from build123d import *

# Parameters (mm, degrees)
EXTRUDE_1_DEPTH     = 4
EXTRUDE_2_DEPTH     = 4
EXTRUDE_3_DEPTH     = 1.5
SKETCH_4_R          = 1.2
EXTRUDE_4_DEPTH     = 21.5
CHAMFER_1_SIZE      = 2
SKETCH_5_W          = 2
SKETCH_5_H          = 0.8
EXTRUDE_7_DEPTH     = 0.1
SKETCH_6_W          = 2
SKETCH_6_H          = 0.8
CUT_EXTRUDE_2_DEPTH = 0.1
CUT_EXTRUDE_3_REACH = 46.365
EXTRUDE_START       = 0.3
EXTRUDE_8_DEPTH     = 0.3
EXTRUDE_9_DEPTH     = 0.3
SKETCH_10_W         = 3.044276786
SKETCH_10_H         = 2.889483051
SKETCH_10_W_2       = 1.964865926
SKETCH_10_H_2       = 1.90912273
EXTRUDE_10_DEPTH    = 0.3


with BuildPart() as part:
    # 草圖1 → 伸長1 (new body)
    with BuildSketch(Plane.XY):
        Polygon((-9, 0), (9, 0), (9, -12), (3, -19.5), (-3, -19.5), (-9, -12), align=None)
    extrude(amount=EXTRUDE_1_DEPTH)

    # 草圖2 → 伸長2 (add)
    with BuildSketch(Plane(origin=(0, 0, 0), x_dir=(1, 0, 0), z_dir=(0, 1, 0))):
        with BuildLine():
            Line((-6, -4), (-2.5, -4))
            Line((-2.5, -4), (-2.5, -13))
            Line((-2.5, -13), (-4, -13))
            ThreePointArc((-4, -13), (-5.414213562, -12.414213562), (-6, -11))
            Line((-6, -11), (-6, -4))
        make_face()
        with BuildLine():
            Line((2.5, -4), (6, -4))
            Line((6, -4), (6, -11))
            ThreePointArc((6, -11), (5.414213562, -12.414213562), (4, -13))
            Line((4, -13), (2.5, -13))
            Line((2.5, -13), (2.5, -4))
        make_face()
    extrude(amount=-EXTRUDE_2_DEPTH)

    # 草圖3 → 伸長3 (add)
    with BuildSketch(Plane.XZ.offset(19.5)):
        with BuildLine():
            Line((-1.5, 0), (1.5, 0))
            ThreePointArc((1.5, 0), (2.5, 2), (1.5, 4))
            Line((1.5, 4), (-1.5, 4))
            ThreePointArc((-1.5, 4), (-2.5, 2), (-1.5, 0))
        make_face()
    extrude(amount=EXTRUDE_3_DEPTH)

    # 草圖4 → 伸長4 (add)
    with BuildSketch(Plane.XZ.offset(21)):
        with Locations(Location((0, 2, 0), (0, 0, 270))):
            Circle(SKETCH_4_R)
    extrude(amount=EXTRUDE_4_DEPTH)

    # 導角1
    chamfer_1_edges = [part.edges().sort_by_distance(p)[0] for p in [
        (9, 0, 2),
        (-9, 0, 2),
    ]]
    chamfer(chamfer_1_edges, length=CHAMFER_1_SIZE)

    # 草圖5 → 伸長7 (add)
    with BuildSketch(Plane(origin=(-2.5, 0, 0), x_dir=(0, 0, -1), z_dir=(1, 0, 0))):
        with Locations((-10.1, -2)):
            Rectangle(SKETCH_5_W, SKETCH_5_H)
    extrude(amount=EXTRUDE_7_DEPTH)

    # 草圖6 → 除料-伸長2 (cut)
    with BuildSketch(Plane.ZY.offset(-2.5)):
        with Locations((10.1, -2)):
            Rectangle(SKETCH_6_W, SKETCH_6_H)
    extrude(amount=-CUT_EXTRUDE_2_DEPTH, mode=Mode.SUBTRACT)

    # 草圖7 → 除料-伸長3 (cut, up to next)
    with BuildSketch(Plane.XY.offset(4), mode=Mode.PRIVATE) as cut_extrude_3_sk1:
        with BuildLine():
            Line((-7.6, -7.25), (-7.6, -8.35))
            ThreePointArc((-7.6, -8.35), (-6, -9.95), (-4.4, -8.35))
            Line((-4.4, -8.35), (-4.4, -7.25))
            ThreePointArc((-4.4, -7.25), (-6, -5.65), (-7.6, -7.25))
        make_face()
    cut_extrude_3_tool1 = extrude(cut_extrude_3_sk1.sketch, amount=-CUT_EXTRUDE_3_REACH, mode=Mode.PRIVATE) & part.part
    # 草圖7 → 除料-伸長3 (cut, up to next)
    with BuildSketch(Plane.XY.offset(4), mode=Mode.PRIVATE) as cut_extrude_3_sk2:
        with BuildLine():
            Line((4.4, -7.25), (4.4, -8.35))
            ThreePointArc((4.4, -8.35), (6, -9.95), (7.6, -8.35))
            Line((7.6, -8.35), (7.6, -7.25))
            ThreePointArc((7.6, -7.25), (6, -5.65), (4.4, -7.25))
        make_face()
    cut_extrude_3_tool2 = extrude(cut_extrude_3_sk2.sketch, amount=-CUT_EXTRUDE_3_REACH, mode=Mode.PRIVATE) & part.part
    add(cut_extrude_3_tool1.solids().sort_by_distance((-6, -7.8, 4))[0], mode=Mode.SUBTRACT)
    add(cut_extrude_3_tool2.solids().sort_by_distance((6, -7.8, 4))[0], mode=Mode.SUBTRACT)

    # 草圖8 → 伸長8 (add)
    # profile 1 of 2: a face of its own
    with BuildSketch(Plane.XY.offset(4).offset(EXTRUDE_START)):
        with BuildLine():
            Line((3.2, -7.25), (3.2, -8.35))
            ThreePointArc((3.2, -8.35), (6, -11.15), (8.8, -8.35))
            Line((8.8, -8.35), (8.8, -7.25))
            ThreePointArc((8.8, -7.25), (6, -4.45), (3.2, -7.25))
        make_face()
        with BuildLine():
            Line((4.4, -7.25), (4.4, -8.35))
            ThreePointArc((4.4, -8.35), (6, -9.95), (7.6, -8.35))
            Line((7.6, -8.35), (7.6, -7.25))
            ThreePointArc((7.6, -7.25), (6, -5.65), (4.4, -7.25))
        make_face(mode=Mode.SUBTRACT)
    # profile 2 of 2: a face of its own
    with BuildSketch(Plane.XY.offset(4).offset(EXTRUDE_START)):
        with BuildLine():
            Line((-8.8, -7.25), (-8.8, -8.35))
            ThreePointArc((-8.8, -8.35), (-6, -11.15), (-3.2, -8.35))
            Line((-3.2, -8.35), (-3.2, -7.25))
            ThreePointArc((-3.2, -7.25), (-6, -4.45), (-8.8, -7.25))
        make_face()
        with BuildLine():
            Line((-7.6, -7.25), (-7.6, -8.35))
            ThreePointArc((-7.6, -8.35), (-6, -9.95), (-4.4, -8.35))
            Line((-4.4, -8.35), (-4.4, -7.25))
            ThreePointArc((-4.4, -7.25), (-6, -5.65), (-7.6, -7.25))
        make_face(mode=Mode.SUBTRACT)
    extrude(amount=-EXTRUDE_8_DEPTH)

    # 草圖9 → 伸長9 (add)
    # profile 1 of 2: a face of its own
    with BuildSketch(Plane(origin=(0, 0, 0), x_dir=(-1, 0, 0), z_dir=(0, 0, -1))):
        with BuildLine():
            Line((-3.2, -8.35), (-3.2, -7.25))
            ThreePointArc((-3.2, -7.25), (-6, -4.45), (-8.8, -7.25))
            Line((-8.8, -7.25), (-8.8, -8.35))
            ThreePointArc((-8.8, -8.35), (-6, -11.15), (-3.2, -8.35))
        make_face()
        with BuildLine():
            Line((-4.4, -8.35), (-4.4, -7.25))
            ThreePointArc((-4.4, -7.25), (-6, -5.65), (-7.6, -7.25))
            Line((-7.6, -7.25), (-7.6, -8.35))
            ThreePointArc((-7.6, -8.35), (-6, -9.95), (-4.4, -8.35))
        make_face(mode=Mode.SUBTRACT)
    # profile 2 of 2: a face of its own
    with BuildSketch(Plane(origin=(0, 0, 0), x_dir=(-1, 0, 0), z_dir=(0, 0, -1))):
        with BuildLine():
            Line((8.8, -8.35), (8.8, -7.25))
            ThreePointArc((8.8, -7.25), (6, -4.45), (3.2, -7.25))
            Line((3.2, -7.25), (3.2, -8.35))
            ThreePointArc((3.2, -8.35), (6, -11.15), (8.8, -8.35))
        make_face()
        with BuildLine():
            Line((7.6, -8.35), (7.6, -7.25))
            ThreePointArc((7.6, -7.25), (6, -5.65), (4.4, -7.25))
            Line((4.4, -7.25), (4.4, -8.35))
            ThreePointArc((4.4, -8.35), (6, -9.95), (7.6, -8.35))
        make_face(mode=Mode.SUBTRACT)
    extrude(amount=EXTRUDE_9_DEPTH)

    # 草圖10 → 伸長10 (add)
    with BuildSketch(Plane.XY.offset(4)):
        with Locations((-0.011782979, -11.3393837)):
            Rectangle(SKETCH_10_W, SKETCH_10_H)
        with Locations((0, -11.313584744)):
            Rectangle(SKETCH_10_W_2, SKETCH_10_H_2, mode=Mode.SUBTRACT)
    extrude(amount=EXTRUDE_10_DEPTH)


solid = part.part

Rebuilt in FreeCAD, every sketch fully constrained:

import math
import FreeCAD as App
import Part
import Sketcher
from FreeCAD import Vector
Q = App.Units.Quantity


def edges_at(feature, points):
    """Names of the edges that pass closest to the given points."""
    edges = feature.Shape.Edges
    near = lambda p: min(range(len(edges)), key=lambda i: edges[i].distToShape(Part.Vertex(*p))[0])
    return sorted({f"Edge{near(p) + 1}" for p in points})

doc = App.newDocument("Part")
body = doc.addObject("PartDesign::Body", "Body")

# Sketch on XY plane
sketch1 = doc.addObject("Sketcher::SketchObject", "Sketch")
body.addObject(sketch1)
sketch1.AttachmentSupport = (doc.XY_Plane, [""])
sketch1.MapMode = "FlatFace"
sketch1.addGeometry([
    Part.LineSegment(Vector(9, 0, 0), Vector(-9, 0, 0)),  # 0
    Part.LineSegment(Vector(-9, 0, 0), Vector(-9, -12, 0)),  # 1
    Part.LineSegment(Vector(-9, -12, 0), Vector(-3, -20, 0)),  # 2
    Part.LineSegment(Vector(-3, -20, 0), Vector(3, -20, 0)),  # 3
    Part.LineSegment(Vector(3, -20, 0), Vector(9, -12, 0)),  # 4
    Part.LineSegment(Vector(9, -12, 0), Vector(9, 0, 0)),  # 5
], False)
sketch1.addConstraint([
    Sketcher.Constraint("Coincident", 0, 2, 1, 1),
    Sketcher.Constraint("Coincident", 1, 2, 2, 1),
    Sketcher.Constraint("Coincident", 2, 2, 3, 1),
    Sketcher.Constraint("Coincident", 3, 2, 4, 1),
    Sketcher.Constraint("Coincident", 4, 2, 5, 1),
    Sketcher.Constraint("Coincident", 5, 2, 0, 1),
    Sketcher.Constraint("Horizontal", 0),
    Sketcher.Constraint("Vertical", 1),
    Sketcher.Constraint("Horizontal", 3),
    Sketcher.Constraint("Vertical", 5),
    Sketcher.Constraint("Symmetric", 0, 2, 5, 2, -1, 1),
    Sketcher.Constraint("Horizontal", 1, 2, 4, 2),
    Sketcher.Constraint("Equal", 2, 4),
    Sketcher.Constraint("DistanceX", 0, 2, 0, 1, Q("18 mm")),
    Sketcher.Constraint("DistanceX", 3, 1, 3, 2, Q("6 mm")),
    Sketcher.Constraint("DistanceY", 1, 2, 1, 1, Q("12 mm")),
    Sketcher.Constraint("DistanceY", 2, 2, -1, 1, Q("19.5 mm")),
])
pad1 = doc.addObject("PartDesign::Pad", "Pad")
body.addObject(pad1)
pad1.Profile = sketch1
pad1.Length = 4

# Sketch on XZ plane
sketch2 = doc.addObject("Sketcher::SketchObject", "Sketch001")
body.addObject(sketch2)
sketch2.AttachmentSupport = (doc.XZ_Plane, [""])
sketch2.MapMode = "FlatFace"
sketch2.addGeometry([
    Part.LineSegment(Vector(-2.5, 4, 0), Vector(-6, 4, 0)),  # 0
    Part.LineSegment(Vector(-6, 4, 0), Vector(-6, 11, 0)),  # 1
    Part.ArcOfCircle(Part.Circle(Vector(-4, 11, 0), Vector(0, 0, 1), 2), math.radians(90), math.radians(180)),  # 2
    Part.LineSegment(Vector(-4, 13, 0), Vector(-2.5, 13, 0)),  # 3
    Part.LineSegment(Vector(-2.5, 13, 0), Vector(-2.5, 4, 0)),  # 4
    Part.LineSegment(Vector(6, 4, 0), Vector(2.5, 4, 0)),  # 5
    Part.LineSegment(Vector(2.5, 4, 0), Vector(2.5, 13, 0)),  # 6
    Part.LineSegment(Vector(2.5, 13, 0), Vector(4, 13, 0)),  # 7
    Part.ArcOfCircle(Part.Circle(Vector(4, 11, 0), Vector(0, 0, 1), 2), math.radians(0), math.radians(90)),  # 8
    Part.LineSegment(Vector(6, 11, 0), Vector(6, 4, 0)),  # 9
], False)
sketch2.addConstraint([
    Sketcher.Constraint("Coincident", 0, 2, 1, 1),
    Sketcher.Constraint("Tangent", 1, 2, 2, 2),
    Sketcher.Constraint("Tangent", 2, 1, 3, 1),
    Sketcher.Constraint("Coincident", 3, 2, 4, 1),
    Sketcher.Constraint("Coincident", 4, 2, 0, 1),
    Sketcher.Constraint("Coincident", 5, 2, 6, 1),
    Sketcher.Constraint("Coincident", 6, 2, 7, 1),
    Sketcher.Constraint("Tangent", 7, 2, 8, 2),
    Sketcher.Constraint("Tangent", 8, 1, 9, 1),
    Sketcher.Constraint("Coincident", 9, 2, 5, 1),
    Sketcher.Constraint("Horizontal", 0),
    Sketcher.Constraint("Vertical", 1),
    Sketcher.Constraint("Horizontal", 3),
    Sketcher.Constraint("Vertical", 4),
    Sketcher.Constraint("Horizontal", 5),
    Sketcher.Constraint("Vertical", 6),
    Sketcher.Constraint("Horizontal", 7),
    Sketcher.Constraint("Vertical", 9),
    Sketcher.Constraint("Equal", 2, 8),
    Sketcher.Constraint("Symmetric", 2, 3, 8, 3, -2),
    Sketcher.Constraint("Symmetric", 4, 2, 5, 2, -2),
    Sketcher.Constraint("Radius", 2, Q("2 mm")),
    Sketcher.Constraint("DistanceY", 1, 1, 1, 2, Q("7 mm")),
    Sketcher.Constraint("DistanceX", 0, 2, 0, 1, Q("3.5 mm")),
    Sketcher.Constraint("DistanceX", 2, 3, -1, 1, Q("4 mm")),
    Sketcher.Constraint("DistanceY", -1, 1, 2, 3, Q("11 mm")),
])
pad2 = doc.addObject("PartDesign::Pad", "Pad001")
body.addObject(pad2)
pad2.Profile = sketch2
pad2.Length = 4

# Sketch on XZ plane
sketch3 = doc.addObject("Sketcher::SketchObject", "Sketch002")
body.addObject(sketch3)
sketch3.AttachmentSupport = (doc.XZ_Plane, [""])
sketch3.MapMode = "FlatFace"
sketch3.AttachmentOffset = App.Placement(Vector(0, 0, 19.5), App.Rotation())
sketch3.addGeometry([
    Part.LineSegment(Vector(-1.5, 0, 0), Vector(1.5, 0, 0)),
    Part.ArcOfCircle(Part.Circle(Vector(0, 2, 0), Vector(0, 0, 1), 2.5), math.radians(-53), math.radians(53)),
    Part.LineSegment(Vector(1.5, 4, 0), Vector(-1.5, 4, 0)),
    Part.ArcOfCircle(Part.Circle(Vector(0, 2, 0), Vector(0, 0, 1), 2.5), math.radians(127), math.radians(233)),
], False)
sketch3.addConstraint([
    Sketcher.Constraint("Coincident", 0, 2, 1, 1),
    Sketcher.Constraint("Coincident", 1, 2, 2, 1),
    Sketcher.Constraint("Coincident", 2, 2, 3, 1),
    Sketcher.Constraint("Coincident", 3, 2, 0, 1),
    Sketcher.Constraint("Horizontal", 0),
    Sketcher.Constraint("Horizontal", 2),
    Sketcher.Constraint("Coincident", 3, 3, 1, 3),
    Sketcher.Constraint("Equal", 1, 3),
    Sketcher.Constraint("Symmetric", 0, 2, 3, 2, -1, 1),
    Sketcher.Constraint("Vertical", 0, 2, 1, 2),
    Sketcher.Constraint("Radius", 1, Q("2.5 mm")),
    Sketcher.Constraint("DistanceX", 0, 1, 0, 2, Q("3 mm")),
])
pad3 = doc.addObject("PartDesign::Pad", "Pad002")
body.addObject(pad3)
pad3.Profile = sketch3
pad3.Length = 1.5

# Sketch on XZ plane
sketch4 = doc.addObject("Sketcher::SketchObject", "Sketch003")
body.addObject(sketch4)
sketch4.AttachmentSupport = (doc.XZ_Plane, [""])
sketch4.MapMode = "FlatFace"
sketch4.AttachmentOffset = App.Placement(Vector(0, 0, 21), App.Rotation())
sketch4.addGeometry(Part.Circle(Vector(0, 2, 0), Vector(0, 0, 1), 1.2), False)
sketch4.addConstraint([
    Sketcher.Constraint("PointOnObject", 0, 3, -2),
    Sketcher.Constraint("Diameter", 0, Q("2.4 mm")),
    Sketcher.Constraint("DistanceY", -1, 1, 0, 3, Q("2 mm")),
])
pad4 = doc.addObject("PartDesign::Pad", "Pad003")
body.addObject(pad4)
pad4.Profile = sketch4
pad4.Length = 21.5
doc.recompute()

chamfer = doc.addObject("PartDesign::Chamfer", "Chamfer")
body.addObject(chamfer)
chamfer.Base = (pad4, edges_at(pad4, [(9, 0, 2), (-9, 0, 2)]))
chamfer.Size = 2

# Sketch on YZ plane
sketch5 = doc.addObject("Sketcher::SketchObject", "Sketch004")
body.addObject(sketch5)
sketch5.AttachmentSupport = (doc.YZ_Plane, [""])
sketch5.MapMode = "FlatFace"
sketch5.AttachmentOffset = App.Placement(Vector(0, 0, -2.5), App.Rotation())
sketch5.addGeometry([
    Part.LineSegment(Vector(-1.6, 11.1, 0), Vector(-2.4, 11.1, 0)),
    Part.LineSegment(Vector(-2.4, 11.1, 0), Vector(-2.4, 9.1, 0)),
    Part.LineSegment(Vector(-2.4, 9.1, 0), Vector(-1.6, 9.1, 0)),
    Part.LineSegment(Vector(-1.6, 9.1, 0), Vector(-1.6, 11.1, 0)),
], False)
sketch5.addConstraint([
    Sketcher.Constraint("Coincident", 0, 2, 1, 1),
    Sketcher.Constraint("Coincident", 1, 2, 2, 1),
    Sketcher.Constraint("Coincident", 2, 2, 3, 1),
    Sketcher.Constraint("Coincident", 3, 2, 0, 1),
    Sketcher.Constraint("Horizontal", 0),
    Sketcher.Constraint("Vertical", 1),
    Sketcher.Constraint("Horizontal", 2),
    Sketcher.Constraint("Vertical", 3),
    Sketcher.Constraint("DistanceY", 1, 2, 1, 1, Q("2 mm")),
    Sketcher.Constraint("DistanceX", 0, 2, 0, 1, Q("0.8 mm")),
    Sketcher.Constraint("DistanceX", 0, 2, -1, 1, Q("2.4 mm")),
    Sketcher.Constraint("DistanceY", -1, 1, 0, 2, Q("11.1 mm")),
])
pad5 = doc.addObject("PartDesign::Pad", "Pad004")
body.addObject(pad5)
pad5.Profile = sketch5
pad5.Length = 0.1

# Sketch on YZ plane
sketch6 = doc.addObject("Sketcher::SketchObject", "Sketch005")
body.addObject(sketch6)
sketch6.AttachmentSupport = (doc.YZ_Plane, [""])
sketch6.MapMode = "FlatFace"
sketch6.AttachmentOffset = App.Placement(Vector(0, 0, 2.5), App.Rotation())
sketch6.addGeometry([
    Part.LineSegment(Vector(-1.6, 9.1, 0), Vector(-2.4, 9.1, 0)),
    Part.LineSegment(Vector(-2.4, 9.1, 0), Vector(-2.4, 11.1, 0)),
    Part.LineSegment(Vector(-2.4, 11.1, 0), Vector(-1.6, 11.1, 0)),
    Part.LineSegment(Vector(-1.6, 11.1, 0), Vector(-1.6, 9.1, 0)),
], False)
sketch6.addConstraint([
    Sketcher.Constraint("Coincident", 0, 2, 1, 1),
    Sketcher.Constraint("Coincident", 1, 2, 2, 1),
    Sketcher.Constraint("Coincident", 2, 2, 3, 1),
    Sketcher.Constraint("Coincident", 3, 2, 0, 1),
    Sketcher.Constraint("Horizontal", 0),
    Sketcher.Constraint("Vertical", 1),
    Sketcher.Constraint("Horizontal", 2),
    Sketcher.Constraint("Vertical", 3),
    Sketcher.Constraint("DistanceY", 1, 1, 1, 2, Q("2 mm")),
    Sketcher.Constraint("DistanceX", 0, 2, 0, 1, Q("0.8 mm")),
    Sketcher.Constraint("DistanceX", 0, 2, -1, 1, Q("2.4 mm")),
    Sketcher.Constraint("DistanceY", -1, 1, 0, 2, Q("9.1 mm")),
])
pocket1 = doc.addObject("PartDesign::Pocket", "Pocket")
body.addObject(pocket1)
pocket1.Profile = sketch6
pocket1.Length = 0.1
pocket1.Reversed = True

# Sketch on XY plane
sketch7 = doc.addObject("Sketcher::SketchObject", "Sketch006")
body.addObject(sketch7)
sketch7.AttachmentSupport = (doc.XY_Plane, [""])
sketch7.MapMode = "FlatFace"
sketch7.AttachmentOffset = App.Placement(Vector(0, 0, 4), App.Rotation())
sketch7.addGeometry([
    Part.LineSegment(Vector(-7.6, -7.2, 0), Vector(-7.6, -8.3, 0)),
    Part.ArcOfCircle(Part.Circle(Vector(-6, -8.3, 0), Vector(0, 0, 1), 1.6), math.radians(180), math.radians(360)),
    Part.LineSegment(Vector(-4.4, -8.3, 0), Vector(-4.4, -7.2, 0)),
    Part.ArcOfCircle(Part.Circle(Vector(-6, -7.2, 0), Vector(0, 0, 1), 1.6), math.radians(0), math.radians(180)),
], False)
sketch7.addConstraint([
    Sketcher.Constraint("Tangent", 0, 2, 1, 1),
    Sketcher.Constraint("Tangent", 1, 2, 2, 1),
    Sketcher.Constraint("Tangent", 2, 2, 3, 1),
    Sketcher.Constraint("Tangent", 3, 2, 0, 1),
    Sketcher.Constraint("Vertical", 0),
    Sketcher.Constraint("Vertical", 2),
    Sketcher.Constraint("Radius", 1, Q("1.6 mm")),
    Sketcher.Constraint("DistanceY", 0, 2, 0, 1, Q("1.1 mm")),
    Sketcher.Constraint("DistanceX", 1, 3, -1, 1, Q("6 mm")),
    Sketcher.Constraint("DistanceY", 1, 3, -1, 1, Q("8.35 mm")),
])
pocket2 = doc.addObject("PartDesign::Pocket", "Pocket001")
body.addObject(pocket2)
pocket2.Profile = sketch7
pocket2.Type = "UpToFirst"

# Sketch on XY plane
sketch8 = doc.addObject("Sketcher::SketchObject", "Sketch007")
body.addObject(sketch8)
sketch8.AttachmentSupport = (doc.XY_Plane, [""])
sketch8.MapMode = "FlatFace"
sketch8.AttachmentOffset = App.Placement(Vector(0, 0, 4), App.Rotation())
sketch8.addGeometry([
    Part.LineSegment(Vector(4.4, -7.2, 0), Vector(4.4, -8.3, 0)),
    Part.ArcOfCircle(Part.Circle(Vector(6, -8.3, 0), Vector(0, 0, 1), 1.6), math.radians(180), math.radians(360)),
    Part.LineSegment(Vector(7.6, -8.3, 0), Vector(7.6, -7.2, 0)),
    Part.ArcOfCircle(Part.Circle(Vector(6, -7.2, 0), Vector(0, 0, 1), 1.6), math.radians(0), math.radians(180)),
], False)
sketch8.addConstraint([
    Sketcher.Constraint("Tangent", 0, 2, 1, 1),
    Sketcher.Constraint("Tangent", 1, 2, 2, 1),
    Sketcher.Constraint("Tangent", 2, 2, 3, 1),
    Sketcher.Constraint("Tangent", 3, 2, 0, 1),
    Sketcher.Constraint("Vertical", 0),
    Sketcher.Constraint("Vertical", 2),
    Sketcher.Constraint("Radius", 1, Q("1.6 mm")),
    Sketcher.Constraint("DistanceY", 0, 2, 0, 1, Q("1.1 mm")),
    Sketcher.Constraint("DistanceX", -1, 1, 1, 3, Q("6 mm")),
    Sketcher.Constraint("DistanceY", 1, 3, -1, 1, Q("8.35 mm")),
])
pocket3 = doc.addObject("PartDesign::Pocket", "Pocket002")
body.addObject(pocket3)
pocket3.Profile = sketch8
pocket3.Type = "UpToFirst"

# Sketch on XY plane
sketch9 = doc.addObject("Sketcher::SketchObject", "Sketch008")
body.addObject(sketch9)
sketch9.AttachmentSupport = (doc.XY_Plane, [""])
sketch9.MapMode = "FlatFace"
sketch9.AttachmentOffset = App.Placement(Vector(0, 0, 4.3), App.Rotation())
sketch9.addGeometry([
    Part.LineSegment(Vector(3.2, -7.2, 0), Vector(3.2, -8.3, 0)),  # 0
    Part.ArcOfCircle(Part.Circle(Vector(6, -8.3, 0), Vector(0, 0, 1), 2.8), math.radians(180), math.radians(360)),  # 1
    Part.LineSegment(Vector(8.8, -8.3, 0), Vector(8.8, -7.2, 0)),  # 2
    Part.ArcOfCircle(Part.Circle(Vector(6, -7.2, 0), Vector(0, 0, 1), 2.8), math.radians(0), math.radians(180)),  # 3
    Part.LineSegment(Vector(4.4, -8.3, 0), Vector(4.4, -7.2, 0)),  # 4
    Part.ArcOfCircle(Part.Circle(Vector(6, -7.2, 0), Vector(0, 0, 1), 1.6), math.radians(0), math.radians(180)),  # 5
    Part.LineSegment(Vector(7.6, -7.2, 0), Vector(7.6, -8.3, 0)),  # 6
    Part.ArcOfCircle(Part.Circle(Vector(6, -8.3, 0), Vector(0, 0, 1), 1.6), math.radians(180), math.radians(360)),  # 7
    Part.LineSegment(Vector(-8.8, -7.2, 0), Vector(-8.8, -8.3, 0)),  # 8
    Part.ArcOfCircle(Part.Circle(Vector(-6, -8.3, 0), Vector(0, 0, 1), 2.8), math.radians(180), math.radians(360)),  # 9
    Part.LineSegment(Vector(-3.2, -8.3, 0), Vector(-3.2, -7.2, 0)),  # 10
    Part.ArcOfCircle(Part.Circle(Vector(-6, -7.2, 0), Vector(0, 0, 1), 2.8), math.radians(0), math.radians(180)),  # 11
    Part.LineSegment(Vector(-7.6, -8.3, 0), Vector(-7.6, -7.2, 0)),  # 12
    Part.ArcOfCircle(Part.Circle(Vector(-6, -7.2, 0), Vector(0, 0, 1), 1.6), math.radians(0), math.radians(180)),  # 13
    Part.LineSegment(Vector(-4.4, -7.2, 0), Vector(-4.4, -8.3, 0)),  # 14
    Part.ArcOfCircle(Part.Circle(Vector(-6, -8.3, 0), Vector(0, 0, 1), 1.6), math.radians(180), math.radians(360)),  # 15
], False)
sketch9.addConstraint([
    Sketcher.Constraint("Tangent", 0, 2, 1, 1),
    Sketcher.Constraint("Tangent", 1, 2, 2, 1),
    Sketcher.Constraint("Tangent", 2, 2, 3, 1),
    Sketcher.Constraint("Tangent", 3, 2, 0, 1),
    Sketcher.Constraint("Tangent", 4, 2, 5, 2),
    Sketcher.Constraint("Tangent", 5, 1, 6, 1),
    Sketcher.Constraint("Tangent", 6, 2, 7, 2),
    Sketcher.Constraint("Tangent", 7, 1, 4, 1),
    Sketcher.Constraint("Tangent", 8, 2, 9, 1),
    Sketcher.Constraint("Tangent", 9, 2, 10, 1),
    Sketcher.Constraint("Tangent", 10, 2, 11, 1),
    Sketcher.Constraint("Tangent", 11, 2, 8, 1),
    Sketcher.Constraint("Tangent", 12, 2, 13, 2),
    Sketcher.Constraint("Tangent", 13, 1, 14, 1),
    Sketcher.Constraint("Tangent", 14, 2, 15, 2),
    Sketcher.Constraint("Tangent", 15, 1, 12, 1),
    Sketcher.Constraint("Vertical", 0),
    Sketcher.Constraint("Vertical", 2),
    Sketcher.Constraint("Vertical", 4),
    Sketcher.Constraint("Vertical", 6),
    Sketcher.Constraint("Vertical", 8),
    Sketcher.Constraint("Vertical", 10),
    Sketcher.Constraint("Vertical", 12),
    Sketcher.Constraint("Vertical", 14),
    Sketcher.Constraint("Coincident", 5, 3, 3, 3),
    Sketcher.Constraint("Coincident", 13, 3, 11, 3),
    Sketcher.Constraint("Equal", 3, 9),
    Sketcher.Constraint("Equal", 7, 13),
    Sketcher.Constraint("Symmetric", 1, 3, 9, 3, -2),
    Sketcher.Constraint("Horizontal", 7, 3, 9, 3),
    Sketcher.Constraint("Horizontal", 5, 3, 11, 3),
    Sketcher.Constraint("Horizontal", 7, 3, 15, 3),
    Sketcher.Constraint("Radius", 1, Q("2.8 mm")),
    Sketcher.Constraint("Radius", 5, Q("1.6 mm")),
    Sketcher.Constraint("DistanceY", 0, 2, 0, 1, Q("1.1 mm")),
    Sketcher.Constraint("DistanceX", -1, 1, 1, 3, Q("6 mm")),
    Sketcher.Constraint("DistanceY", 1, 3, -1, 1, Q("8.35 mm")),
])
pad6 = doc.addObject("PartDesign::Pad", "Pad005")
body.addObject(pad6)
pad6.Profile = sketch9
pad6.Length = 0.3
pad6.Reversed = True

# Sketch on XY plane
sketch10 = doc.addObject("Sketcher::SketchObject", "Sketch009")
body.addObject(sketch10)
sketch10.AttachmentSupport = (doc.XY_Plane, [""])
sketch10.MapMode = "FlatFace"
sketch10.addGeometry([
    Part.LineSegment(Vector(3.2, -8.3, 0), Vector(3.2, -7.2, 0)),  # 0
    Part.ArcOfCircle(Part.Circle(Vector(6, -7.2, 0), Vector(0, 0, 1), 2.8), math.radians(0), math.radians(180)),  # 1
    Part.LineSegment(Vector(8.8, -7.2, 0), Vector(8.8, -8.3, 0)),  # 2
    Part.ArcOfCircle(Part.Circle(Vector(6, -8.3, 0), Vector(0, 0, 1), 2.8), math.radians(180), math.radians(360)),  # 3
    Part.LineSegment(Vector(4.4, -7.2, 0), Vector(4.4, -8.3, 0)),  # 4
    Part.ArcOfCircle(Part.Circle(Vector(6, -8.3, 0), Vector(0, 0, 1), 1.6), math.radians(180), math.radians(360)),  # 5
    Part.LineSegment(Vector(7.6, -8.3, 0), Vector(7.6, -7.2, 0)),  # 6
    Part.ArcOfCircle(Part.Circle(Vector(6, -7.2, 0), Vector(0, 0, 1), 1.6), math.radians(0), math.radians(180)),  # 7
    Part.LineSegment(Vector(-8.8, -8.3, 0), Vector(-8.8, -7.2, 0)),  # 8
    Part.ArcOfCircle(Part.Circle(Vector(-6, -7.2, 0), Vector(0, 0, 1), 2.8), math.radians(0), math.radians(180)),  # 9
    Part.LineSegment(Vector(-3.2, -7.2, 0), Vector(-3.2, -8.3, 0)),  # 10
    Part.ArcOfCircle(Part.Circle(Vector(-6, -8.3, 0), Vector(0, 0, 1), 2.8), math.radians(180), math.radians(360)),  # 11
    Part.LineSegment(Vector(-7.6, -7.2, 0), Vector(-7.6, -8.3, 0)),  # 12
    Part.ArcOfCircle(Part.Circle(Vector(-6, -8.3, 0), Vector(0, 0, 1), 1.6), math.radians(180), math.radians(360)),  # 13
    Part.LineSegment(Vector(-4.4, -8.3, 0), Vector(-4.4, -7.2, 0)),  # 14
    Part.ArcOfCircle(Part.Circle(Vector(-6, -7.2, 0), Vector(0, 0, 1), 1.6), math.radians(0), math.radians(180)),  # 15
], False)
sketch10.addConstraint([
    Sketcher.Constraint("Tangent", 0, 2, 1, 2),
    Sketcher.Constraint("Tangent", 1, 1, 2, 1),
    Sketcher.Constraint("Tangent", 2, 2, 3, 2),
    Sketcher.Constraint("Tangent", 3, 1, 0, 1),
    Sketcher.Constraint("Tangent", 4, 2, 5, 1),
    Sketcher.Constraint("Tangent", 5, 2, 6, 1),
    Sketcher.Constraint("Tangent", 6, 2, 7, 1),
    Sketcher.Constraint("Tangent", 7, 2, 4, 1),
    Sketcher.Constraint("Tangent", 8, 2, 9, 2),
    Sketcher.Constraint("Tangent", 9, 1, 10, 1),
    Sketcher.Constraint("Tangent", 10, 2, 11, 2),
    Sketcher.Constraint("Tangent", 11, 1, 8, 1),
    Sketcher.Constraint("Tangent", 12, 2, 13, 1),
    Sketcher.Constraint("Tangent", 13, 2, 14, 1),
    Sketcher.Constraint("Tangent", 14, 2, 15, 1),
    Sketcher.Constraint("Tangent", 15, 2, 12, 1),
    Sketcher.Constraint("Vertical", 0),
    Sketcher.Constraint("Vertical", 2),
    Sketcher.Constraint("Vertical", 4),
    Sketcher.Constraint("Vertical", 6),
    Sketcher.Constraint("Vertical", 8),
    Sketcher.Constraint("Vertical", 10),
    Sketcher.Constraint("Vertical", 12),
    Sketcher.Constraint("Vertical", 14),
    Sketcher.Constraint("Coincident", 5, 3, 3, 3),
    Sketcher.Constraint("Coincident", 13, 3, 11, 3),
    Sketcher.Constraint("Equal", 3, 9),
    Sketcher.Constraint("Equal", 7, 13),
    Sketcher.Constraint("Symmetric", 1, 3, 9, 3, -2),
    Sketcher.Constraint("Horizontal", 7, 3, 9, 3),
    Sketcher.Constraint("Horizontal", 5, 3, 11, 3),
    Sketcher.Constraint("Horizontal", 7, 3, 15, 3),
    Sketcher.Constraint("Radius", 1, Q("2.8 mm")),
    Sketcher.Constraint("Radius", 5, Q("1.6 mm")),
    Sketcher.Constraint("DistanceY", 0, 1, 0, 2, Q("1.1 mm")),
    Sketcher.Constraint("DistanceX", -1, 1, 1, 3, Q("6 mm")),
    Sketcher.Constraint("DistanceY", 1, 3, -1, 1, Q("7.25 mm")),
])
pad7 = doc.addObject("PartDesign::Pad", "Pad006")
body.addObject(pad7)
pad7.Profile = sketch10
pad7.Length = 0.3
pad7.Reversed = True

# Sketch on XY plane
sketch11 = doc.addObject("Sketcher::SketchObject", "Sketch010")
body.addObject(sketch11)
sketch11.AttachmentSupport = (doc.XY_Plane, [""])
sketch11.MapMode = "FlatFace"
sketch11.AttachmentOffset = App.Placement(Vector(0, 0, 4), App.Rotation())
sketch11.addGeometry([
    Part.LineSegment(Vector(-1.5, -9.9, 0), Vector(-1.5, -12.8, 0)),  # 0
    Part.LineSegment(Vector(-1.5, -12.8, 0), Vector(1.5, -12.8, 0)),  # 1
    Part.LineSegment(Vector(1.5, -12.8, 0), Vector(1.5, -9.9, 0)),  # 2
    Part.LineSegment(Vector(1.5, -9.9, 0), Vector(-1.5, -9.9, 0)),  # 3
    Part.LineSegment(Vector(1, -12.3, 0), Vector(-1, -12.3, 0)),  # 4
    Part.LineSegment(Vector(-1, -12.3, 0), Vector(-1, -10.4, 0)),  # 5
    Part.LineSegment(Vector(-1, -10.4, 0), Vector(1, -10.4, 0)),  # 6
    Part.LineSegment(Vector(1, -10.4, 0), Vector(1, -12.3, 0)),  # 7
], False)
sketch11.addConstraint([
    Sketcher.Constraint("Coincident", 0, 2, 1, 1),
    Sketcher.Constraint("Coincident", 1, 2, 2, 1),
    Sketcher.Constraint("Coincident", 2, 2, 3, 1),
    Sketcher.Constraint("Coincident", 3, 2, 0, 1),
    Sketcher.Constraint("Coincident", 4, 2, 5, 1),
    Sketcher.Constraint("Coincident", 5, 2, 6, 1),
    Sketcher.Constraint("Coincident", 6, 2, 7, 1),
    Sketcher.Constraint("Coincident", 7, 2, 4, 1),
    Sketcher.Constraint("Vertical", 0),
    Sketcher.Constraint("Horizontal", 1),
    Sketcher.Constraint("Vertical", 2),
    Sketcher.Constraint("Horizontal", 3),
    Sketcher.Constraint("Horizontal", 4),
    Sketcher.Constraint("Vertical", 5),
    Sketcher.Constraint("Horizontal", 6),
    Sketcher.Constraint("Vertical", 7),
    Sketcher.Constraint("DistanceY", 0, 2, 5, 2, Q("2.425102 mm")),
    Sketcher.Constraint("DistanceX", 1, 1, 1, 2, Q("3.044277 mm")),
    Sketcher.Constraint("DistanceX", 4, 2, 4, 1, Q("1.964866 mm")),
    Sketcher.Constraint("DistanceY", 0, 2, 0, 1, Q("2.889483 mm")),
    Sketcher.Constraint("DistanceY", 5, 1, 5, 2, Q("1.909123 mm")),
    Sketcher.Constraint("DistanceX", 0, 2, -1, 1, Q("1.533921 mm")),
    Sketcher.Constraint("DistanceX", 0, 2, 4, 2, Q("0.551488 mm")),
    Sketcher.Constraint("DistanceY", 0, 2, -1, 1, Q("12.784125 mm")),
])
pad8 = doc.addObject("PartDesign::Pad", "Pad007")
body.addObject(pad8)
pad8.Profile = sketch11
pad8.Length = 0.3

doc.recompute()
